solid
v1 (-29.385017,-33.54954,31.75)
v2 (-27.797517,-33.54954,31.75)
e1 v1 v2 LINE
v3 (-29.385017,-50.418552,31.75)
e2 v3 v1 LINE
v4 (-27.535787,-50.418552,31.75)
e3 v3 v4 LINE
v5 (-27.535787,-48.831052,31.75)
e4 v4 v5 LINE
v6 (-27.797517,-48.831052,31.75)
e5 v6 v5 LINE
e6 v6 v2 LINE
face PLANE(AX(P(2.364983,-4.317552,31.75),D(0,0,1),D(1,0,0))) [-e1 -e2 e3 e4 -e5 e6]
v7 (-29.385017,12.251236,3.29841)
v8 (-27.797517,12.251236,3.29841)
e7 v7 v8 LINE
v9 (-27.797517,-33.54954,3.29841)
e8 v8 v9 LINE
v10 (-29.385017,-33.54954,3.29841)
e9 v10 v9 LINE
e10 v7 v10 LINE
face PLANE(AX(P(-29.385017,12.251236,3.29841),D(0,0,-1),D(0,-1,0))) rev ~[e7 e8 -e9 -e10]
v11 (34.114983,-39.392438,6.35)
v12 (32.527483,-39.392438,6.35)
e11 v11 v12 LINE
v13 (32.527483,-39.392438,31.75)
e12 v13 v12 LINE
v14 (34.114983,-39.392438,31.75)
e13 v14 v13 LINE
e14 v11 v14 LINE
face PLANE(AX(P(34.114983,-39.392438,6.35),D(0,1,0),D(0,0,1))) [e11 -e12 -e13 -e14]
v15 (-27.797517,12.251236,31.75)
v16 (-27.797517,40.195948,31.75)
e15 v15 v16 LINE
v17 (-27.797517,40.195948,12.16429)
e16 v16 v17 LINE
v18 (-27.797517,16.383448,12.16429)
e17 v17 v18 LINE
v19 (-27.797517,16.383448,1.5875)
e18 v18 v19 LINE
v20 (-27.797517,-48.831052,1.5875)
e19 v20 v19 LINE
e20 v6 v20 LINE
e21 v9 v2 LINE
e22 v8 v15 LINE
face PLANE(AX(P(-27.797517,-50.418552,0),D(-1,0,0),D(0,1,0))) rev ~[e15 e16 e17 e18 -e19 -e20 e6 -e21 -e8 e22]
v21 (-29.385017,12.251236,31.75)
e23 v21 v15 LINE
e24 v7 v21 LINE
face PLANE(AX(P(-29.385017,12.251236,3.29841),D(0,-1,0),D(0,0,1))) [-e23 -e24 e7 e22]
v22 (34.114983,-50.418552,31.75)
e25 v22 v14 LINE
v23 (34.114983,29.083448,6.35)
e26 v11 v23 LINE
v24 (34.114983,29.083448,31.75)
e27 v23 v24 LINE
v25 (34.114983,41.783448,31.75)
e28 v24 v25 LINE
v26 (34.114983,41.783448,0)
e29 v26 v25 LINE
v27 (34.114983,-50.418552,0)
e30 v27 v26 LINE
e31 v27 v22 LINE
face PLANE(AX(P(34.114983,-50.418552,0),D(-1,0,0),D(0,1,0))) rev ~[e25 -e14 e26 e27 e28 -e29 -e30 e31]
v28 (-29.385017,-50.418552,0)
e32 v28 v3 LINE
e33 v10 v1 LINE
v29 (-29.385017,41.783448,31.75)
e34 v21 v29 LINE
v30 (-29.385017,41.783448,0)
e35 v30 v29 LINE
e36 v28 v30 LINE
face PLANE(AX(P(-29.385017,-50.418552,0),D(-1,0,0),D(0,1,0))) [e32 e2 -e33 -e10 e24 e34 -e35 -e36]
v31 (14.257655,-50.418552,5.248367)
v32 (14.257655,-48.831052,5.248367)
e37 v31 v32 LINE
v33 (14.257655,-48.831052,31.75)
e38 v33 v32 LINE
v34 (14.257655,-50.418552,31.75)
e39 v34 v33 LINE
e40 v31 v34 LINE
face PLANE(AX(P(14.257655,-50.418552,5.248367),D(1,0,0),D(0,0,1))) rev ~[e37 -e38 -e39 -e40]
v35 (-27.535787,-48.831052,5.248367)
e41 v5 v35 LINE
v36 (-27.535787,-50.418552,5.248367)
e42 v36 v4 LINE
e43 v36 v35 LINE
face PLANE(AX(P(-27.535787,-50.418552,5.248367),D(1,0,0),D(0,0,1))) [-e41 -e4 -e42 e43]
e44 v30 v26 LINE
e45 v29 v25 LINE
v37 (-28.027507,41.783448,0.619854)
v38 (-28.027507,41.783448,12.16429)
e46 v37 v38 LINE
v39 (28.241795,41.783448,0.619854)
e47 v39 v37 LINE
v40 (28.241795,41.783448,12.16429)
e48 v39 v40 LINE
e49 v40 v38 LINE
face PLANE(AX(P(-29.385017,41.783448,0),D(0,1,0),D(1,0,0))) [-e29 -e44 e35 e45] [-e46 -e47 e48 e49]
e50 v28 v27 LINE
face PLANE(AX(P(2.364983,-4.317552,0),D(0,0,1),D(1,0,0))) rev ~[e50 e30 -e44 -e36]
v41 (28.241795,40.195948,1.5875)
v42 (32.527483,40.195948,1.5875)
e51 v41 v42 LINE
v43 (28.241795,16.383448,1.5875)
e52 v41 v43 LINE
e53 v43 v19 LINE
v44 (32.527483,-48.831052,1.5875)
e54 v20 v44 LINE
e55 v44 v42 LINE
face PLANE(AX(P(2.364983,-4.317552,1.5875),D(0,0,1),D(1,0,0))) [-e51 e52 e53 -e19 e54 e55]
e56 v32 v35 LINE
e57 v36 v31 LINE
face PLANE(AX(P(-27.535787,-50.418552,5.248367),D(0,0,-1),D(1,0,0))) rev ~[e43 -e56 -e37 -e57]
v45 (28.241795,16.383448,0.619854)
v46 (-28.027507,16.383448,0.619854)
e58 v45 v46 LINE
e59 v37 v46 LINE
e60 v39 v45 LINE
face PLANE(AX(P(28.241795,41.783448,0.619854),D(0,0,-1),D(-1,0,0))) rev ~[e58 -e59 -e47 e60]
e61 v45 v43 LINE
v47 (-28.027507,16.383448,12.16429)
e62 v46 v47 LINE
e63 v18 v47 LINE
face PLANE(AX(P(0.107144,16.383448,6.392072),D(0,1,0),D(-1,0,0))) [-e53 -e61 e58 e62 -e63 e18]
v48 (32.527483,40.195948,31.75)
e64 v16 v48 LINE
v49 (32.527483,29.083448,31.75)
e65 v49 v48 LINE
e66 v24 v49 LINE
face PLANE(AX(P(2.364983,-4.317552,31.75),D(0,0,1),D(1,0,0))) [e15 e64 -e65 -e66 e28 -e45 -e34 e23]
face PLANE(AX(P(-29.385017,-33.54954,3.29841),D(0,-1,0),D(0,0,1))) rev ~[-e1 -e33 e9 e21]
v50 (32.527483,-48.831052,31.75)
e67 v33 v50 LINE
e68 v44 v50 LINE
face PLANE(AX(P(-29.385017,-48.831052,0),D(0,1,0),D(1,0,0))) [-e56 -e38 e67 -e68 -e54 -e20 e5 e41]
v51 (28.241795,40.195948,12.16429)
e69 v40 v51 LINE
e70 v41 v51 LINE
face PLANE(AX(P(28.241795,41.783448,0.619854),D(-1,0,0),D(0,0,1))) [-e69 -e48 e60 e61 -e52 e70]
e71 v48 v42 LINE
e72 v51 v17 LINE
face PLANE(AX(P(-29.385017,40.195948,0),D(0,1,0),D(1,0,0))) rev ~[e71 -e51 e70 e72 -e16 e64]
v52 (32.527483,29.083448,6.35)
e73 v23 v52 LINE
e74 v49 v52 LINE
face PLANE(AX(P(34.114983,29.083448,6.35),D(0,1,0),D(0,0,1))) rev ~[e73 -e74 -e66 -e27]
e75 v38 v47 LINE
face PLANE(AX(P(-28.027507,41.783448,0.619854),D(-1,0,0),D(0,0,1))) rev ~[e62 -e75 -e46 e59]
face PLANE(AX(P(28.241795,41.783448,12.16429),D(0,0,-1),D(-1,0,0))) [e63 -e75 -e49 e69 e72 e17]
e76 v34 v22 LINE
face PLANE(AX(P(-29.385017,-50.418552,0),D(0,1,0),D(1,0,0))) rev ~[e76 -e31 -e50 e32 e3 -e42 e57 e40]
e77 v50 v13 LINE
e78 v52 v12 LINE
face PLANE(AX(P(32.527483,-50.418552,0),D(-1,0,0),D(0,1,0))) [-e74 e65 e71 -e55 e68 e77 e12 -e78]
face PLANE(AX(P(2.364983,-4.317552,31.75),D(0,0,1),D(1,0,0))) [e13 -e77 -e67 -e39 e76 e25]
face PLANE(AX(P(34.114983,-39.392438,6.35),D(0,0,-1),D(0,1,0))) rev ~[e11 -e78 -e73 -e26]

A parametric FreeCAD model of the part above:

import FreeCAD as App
import Part
import Sketcher
from FreeCAD import Vector
Q = App.Units.Quantity


def faces_at(feature, points):
    """Names of the faces that lie closest to the given points."""
    faces = feature.Shape.Faces
    near = lambda p: min(range(len(faces)), key=lambda i: faces[i].distToShape(Part.Vertex(*p))[0])
    return sorted({f"Face{near(p) + 1}" for p in points})

doc = App.newDocument("Part")
body = doc.addObject("PartDesign::Body", "Body")

sketch1 = body.newObject("Sketcher::SketchObject", "Sketch")
sketch1.AttachmentSupport = (doc.getObject("XY_Plane"), [""])
sketch1.MapMode = "FlatFace"
sketch1.addGeometry(Part.LineSegment(Vector(-29, 42, 0), Vector(-29, -50, 0)), False)
sketch1.addGeometry(Part.LineSegment(Vector(-29, -50, 0), Vector(34, -50, 0)), False)
sketch1.addGeometry(Part.LineSegment(Vector(34, -50, 0), Vector(34, 42, 0)), False)
sketch1.addGeometry(Part.LineSegment(Vector(34, 42, 0), Vector(-29, 42, 0)), False)
sketch1.addConstraint(Sketcher.Constraint("Coincident", 0, 2, 1, 1))
sketch1.addConstraint(Sketcher.Constraint("Coincident", 1, 2, 2, 1))
sketch1.addConstraint(Sketcher.Constraint("Coincident", 2, 2, 3, 1))
sketch1.addConstraint(Sketcher.Constraint("Coincident", 3, 2, 0, 1))
sketch1.addConstraint(Sketcher.Constraint("Vertical", 0))
sketch1.addConstraint(Sketcher.Constraint("Horizontal", 1))
sketch1.addConstraint(Sketcher.Constraint("Vertical", 2))
sketch1.addConstraint(Sketcher.Constraint("Horizontal", 3))
sketch1.addConstraint(Sketcher.Constraint("DistanceX", 1, 1, 1, 2, Q("2.5 in")))
sketch1.addConstraint(Sketcher.Constraint("DistanceY", 0, 2, 0, 1, Q("3.63 in")))
sketch1.addConstraint(Sketcher.Constraint("DistanceY", 0, 2, -1, 1, 50.418552))
sketch1.addConstraint(Sketcher.Constraint("DistanceX", 0, 2, -1, 1, 29.385017))
pad1 = body.newObject("PartDesign::Pad", "Pad")
pad1.Profile = sketch1
pad1.Length = Q("1.25 in")
doc.recompute()

thickness = body.newObject("PartDesign::Thickness", "Thickness")
thickness.Base = (pad1, faces_at(pad1, [(2.365, -4.318, 31.75)]))
thickness.Value = Q("0.0625 in")
thickness.Reversed = True
thickness.Join = "Arc"

sketch2 = body.newObject("Sketcher::SketchObject", "Sketch001")
sketch2.AttachmentSupport = (doc.getObject("YZ_Plane"), [""])
sketch2.MapMode = "FlatFace"
sketch2.AttachmentOffset = App.Placement(Vector(0, 0, 34.114983), App.Rotation())
sketch2.addGeometry(Part.LineSegment(Vector(-39, 32, 0), Vector(-39, 6, 0)), False)
sketch2.addGeometry(Part.LineSegment(Vector(-39, 6, 0), Vector(29, 6, 0)), False)
sketch2.addGeometry(Part.LineSegment(Vector(29, 6, 0), Vector(29, 32, 0)), False)
sketch2.addGeometry(Part.LineSegment(Vector(29, 32, 0), Vector(-39, 32, 0)), False)
sketch2.addConstraint(Sketcher.Constraint("Coincident", 0, 2, 1, 1))
sketch2.addConstraint(Sketcher.Constraint("Coincident", 1, 2, 2, 1))
sketch2.addConstraint(Sketcher.Constraint("Coincident", 2, 2, 3, 1))
sketch2.addConstraint(Sketcher.Constraint("Coincident", 3, 2, 0, 1))
sketch2.addConstraint(Sketcher.Constraint("Vertical", 0))
sketch2.addConstraint(Sketcher.Constraint("Horizontal", 1))
sketch2.addConstraint(Sketcher.Constraint("Vertical", 2))
sketch2.addConstraint(Sketcher.Constraint("Horizontal", 3))
sketch2.addConstraint(Sketcher.Constraint("DistanceY", 0, 2, 0, 1, Q("1 in")))
sketch2.addConstraint(Sketcher.Constraint("DistanceY", -1, 1, 0, 2, Q("0.25 in")))
sketch2.addConstraint(Sketcher.Constraint("DistanceX", 1, 1, 1, 2, 68.475886))
sketch2.addConstraint(Sketcher.Constraint("DistanceX", -1, 1, 1, 2, 29.083448))
pocket1 = body.newObject("PartDesign::Pocket", "Pocket")
pocket1.Profile = sketch2
pocket1.Length = Q("1 in")

sketch3 = body.newObject("Sketcher::SketchObject", "Sketch002")
sketch3.AttachmentSupport = (doc.getObject("XZ_Plane"), [""])
sketch3.MapMode = "FlatFace"
sketch3.AttachmentOffset = App.Placement(Vector(0, 0, 50.418552), App.Rotation())
sketch3.addGeometry(Part.LineSegment(Vector(-28, 32, 0), Vector(-28, 5, 0)), False)
sketch3.addGeometry(Part.LineSegment(Vector(-28, 5, 0), Vector(14, 5, 0)), False)
sketch3.addGeometry(Part.LineSegment(Vector(14, 5, 0), Vector(14, 32, 0)), False)
sketch3.addGeometry(Part.LineSegment(Vector(14, 32, 0), Vector(-28, 32, 0)), False)
sketch3.addConstraint(Sketcher.Constraint("Coincident", 0, 2, 1, 1))
sketch3.addConstraint(Sketcher.Constraint("Coincident", 1, 2, 2, 1))
sketch3.addConstraint(Sketcher.Constraint("Coincident", 2, 2, 3, 1))
sketch3.addConstraint(Sketcher.Constraint("Coincident", 3, 2, 0, 1))
sketch3.addConstraint(Sketcher.Constraint("Vertical", 0))
sketch3.addConstraint(Sketcher.Constraint("Horizontal", 1))
sketch3.addConstraint(Sketcher.Constraint("Vertical", 2))
sketch3.addConstraint(Sketcher.Constraint("Horizontal", 3))
sketch3.addConstraint(Sketcher.Constraint("DistanceY", -1, 1, 2, 2, Q("1.25 in")))
sketch3.addConstraint(Sketcher.Constraint("DistanceX", 1, 1, 1, 2, 41.793442))
sketch3.addConstraint(Sketcher.Constraint("DistanceY", 0, 2, 0, 1, 26.501633))
sketch3.addConstraint(Sketcher.Constraint("DistanceX", 0, 2, -1, 1, 27.535787))
pocket2 = body.newObject("PartDesign::Pocket", "Pocket001")
pocket2.Profile = sketch3
pocket2.Length = Q("1 in")

sketch4 = body.newObject("Sketcher::SketchObject", "Sketch003")
sketch4.AttachmentSupport = (doc.getObject("YZ_Plane"), [""])
sketch4.MapMode = "FlatFace"
sketch4.AttachmentOffset = App.Placement(Vector(0, 0, -29.385017), App.Rotation())
sketch4.addGeometry(Part.LineSegment(Vector(12, 32, 0), Vector(12, 3, 0)), False)
sketch4.addGeometry(Part.LineSegment(Vector(12, 3, 0), Vector(-34, 3, 0)), False)
sketch4.addGeometry(Part.LineSegment(Vector(-34, 3, 0), Vector(-34, 32, 0)), False)
sketch4.addGeometry(Part.LineSegment(Vector(-34, 32, 0), Vector(12, 32, 0)), False)
sketch4.addConstraint(Sketcher.Constraint("Coincident", 0, 2, 1, 1))
sketch4.addConstraint(Sketcher.Constraint("Coincident", 1, 2, 2, 1))
sketch4.addConstraint(Sketcher.Constraint("Coincident", 2, 2, 3, 1))
sketch4.addConstraint(Sketcher.Constraint("Coincident", 3, 2, 0, 1))
sketch4.addConstraint(Sketcher.Constraint("Vertical", 0))
sketch4.addConstraint(Sketcher.Constraint("Horizontal", 1))
sketch4.addConstraint(Sketcher.Constraint("Vertical", 2))
sketch4.addConstraint(Sketcher.Constraint("Horizontal", 3))
sketch4.addConstraint(Sketcher.Constraint("DistanceY", -1, 1, 2, 2, Q("1.25 in")))
sketch4.addConstraint(Sketcher.Constraint("DistanceY", 0, 2, 0, 1, 28.45159))
sketch4.addConstraint(Sketcher.Constraint("DistanceX", 1, 2, 1, 1, 45.800777))
sketch4.addConstraint(Sketcher.Constraint("DistanceX", 1, 2, -1, 1, 33.54954))
pocket3 = body.newObject("PartDesign::Pocket", "Pocket002")
pocket3.Profile = sketch4
pocket3.Length = Q("1 in")
pocket3.Reversed = True

sketch5 = body.newObject("Sketcher::SketchObject", "Sketch004")
sketch5.AttachmentSupport = (doc.getObject("XZ_Plane"), [""])
sketch5.MapMode = "FlatFace"
sketch5.AttachmentOffset = App.Placement(Vector(0, 0, -41.783448), App.Rotation())
sketch5.addGeometry(Part.LineSegment(Vector(28, 12, 0), Vector(28, 1, 0)), False)
sketch5.addGeometry(Part.LineSegment(Vector(28, 1, 0), Vector(-28, 1, 0)), False)
sketch5.addGeometry(Part.LineSegment(Vector(-28, 1, 0), Vector(-28, 12, 0)), False)
sketch5.addGeometry(Part.LineSegment(Vector(-28, 12, 0), Vector(28, 12, 0)), False)
sketch5.addConstraint(Sketcher.Constraint("Coincident", 0, 2, 1, 1))
sketch5.addConstraint(Sketcher.Constraint("Coincident", 1, 2, 2, 1))
sketch5.addConstraint(Sketcher.Constraint("Coincident", 2, 2, 3, 1))
sketch5.addConstraint(Sketcher.Constraint("Coincident", 3, 2, 0, 1))
sketch5.addConstraint(Sketcher.Constraint("Vertical", 0))
sketch5.addConstraint(Sketcher.Constraint("Horizontal", 1))
sketch5.addConstraint(Sketcher.Constraint("Vertical", 2))
sketch5.addConstraint(Sketcher.Constraint("Horizontal", 3))
sketch5.addConstraint(Sketcher.Constraint("DistanceX", 1, 2, 1, 1, 56.269303))
sketch5.addConstraint(Sketcher.Constraint("DistanceY", 0, 2, 0, 1, 11.544435))
sketch5.addConstraint(Sketcher.Constraint("DistanceY", -1, 1, 2, 2, 12.16429))
sketch5.addConstraint(Sketcher.Constraint("DistanceX", -1, 1, 0, 2, 28.241795))
pocket4 = body.newObject("PartDesign::Pocket", "Pocket003")
pocket4.Profile = sketch5
pocket4.Length = Q("1 in")
pocket4.Reversed = True

doc.recompute()
